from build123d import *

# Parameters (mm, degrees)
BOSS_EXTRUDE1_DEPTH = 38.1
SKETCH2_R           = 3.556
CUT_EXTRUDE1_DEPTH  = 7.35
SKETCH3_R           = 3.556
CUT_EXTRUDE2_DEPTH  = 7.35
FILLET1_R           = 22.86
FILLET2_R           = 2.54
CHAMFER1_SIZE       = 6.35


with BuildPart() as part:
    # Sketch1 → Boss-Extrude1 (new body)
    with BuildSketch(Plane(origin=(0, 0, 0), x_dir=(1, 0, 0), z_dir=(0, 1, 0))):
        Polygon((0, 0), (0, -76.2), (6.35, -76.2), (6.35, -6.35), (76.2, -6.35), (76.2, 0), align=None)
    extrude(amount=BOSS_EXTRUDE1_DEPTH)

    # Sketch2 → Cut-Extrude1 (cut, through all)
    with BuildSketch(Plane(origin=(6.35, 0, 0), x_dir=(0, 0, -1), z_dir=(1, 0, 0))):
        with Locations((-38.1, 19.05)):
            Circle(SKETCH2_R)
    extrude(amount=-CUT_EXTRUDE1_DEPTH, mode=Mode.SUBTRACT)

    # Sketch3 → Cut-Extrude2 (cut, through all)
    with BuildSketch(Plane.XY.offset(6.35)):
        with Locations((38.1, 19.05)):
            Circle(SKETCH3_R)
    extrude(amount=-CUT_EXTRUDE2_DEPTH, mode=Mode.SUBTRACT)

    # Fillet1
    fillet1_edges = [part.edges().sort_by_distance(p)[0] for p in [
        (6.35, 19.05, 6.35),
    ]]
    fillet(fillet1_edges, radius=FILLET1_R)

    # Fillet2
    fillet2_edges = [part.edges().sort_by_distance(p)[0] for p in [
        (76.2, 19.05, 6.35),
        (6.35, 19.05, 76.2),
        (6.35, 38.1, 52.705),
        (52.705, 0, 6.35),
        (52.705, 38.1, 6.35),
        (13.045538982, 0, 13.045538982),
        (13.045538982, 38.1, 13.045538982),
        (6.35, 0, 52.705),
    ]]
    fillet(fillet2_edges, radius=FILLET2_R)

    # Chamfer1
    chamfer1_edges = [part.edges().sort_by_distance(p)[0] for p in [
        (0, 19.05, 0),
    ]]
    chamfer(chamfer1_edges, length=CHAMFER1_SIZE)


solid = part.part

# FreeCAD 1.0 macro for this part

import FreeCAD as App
import Part
import Sketcher
from FreeCAD import Vector
Q = App.Units.Quantity


def edges_at(feature, points):
    """Names of the edges that pass closest to the given points."""
    edges = feature.Shape.Edges
    near = lambda p: min(range(len(edges)), key=lambda i: edges[i].distToShape(Part.Vertex(*p))[0])
    return sorted({f"Edge{near(p) + 1}" for p in points})


def add_polygon(sketch, points):
    """Adds a closed chain of lines whose ends are joined by coincident constraints."""
    first, n = sketch.GeometryCount, len(points)
    for a, b in zip(points, points[1:] + points[:1]):
        sketch.addGeometry(Part.LineSegment(App.Vector(*a, 0), App.Vector(*b, 0)), False)
    for i in range(n):
        sketch.addConstraint(Sketcher.Constraint("Coincident", first + i, 2, first + (i + 1) % n, 1))

doc = App.newDocument("Part")
body = doc.addObject("PartDesign::Body", "Body")

sketch1 = doc.addObject("Sketcher::SketchObject", "Sketch")
body.addObject(sketch1)
sketch1.AttachmentSupport = (doc.XZ_Plane, [""])
sketch1.MapMode = "FlatFace"
add_polygon(sketch1, [(0, 0), (0, 76), (6, 76), (6, 6), (76, 6), (76, 0)])
sketch1.addConstraint([
    Sketcher.Constraint("Vertical", 0),
    Sketcher.Constraint("Horizontal", 1),
    Sketcher.Constraint("Vertical", 2),
    Sketcher.Constraint("Horizontal", 3),
    Sketcher.Constraint("Vertical", 4),
    Sketcher.Constraint("Horizontal", 5),
    Sketcher.Constraint("Coincident", 5, 2, -1, 1),
    Sketcher.Constraint("Equal", 5, 0),
    Sketcher.Constraint("Equal", 3, 2),
    Sketcher.Constraint("DistanceX", 5, 2, 5, 1, Q("3 in")),
    Sketcher.Constraint("DistanceX", 1, 1, 1, 2, Q("0.25 in")),
])
pad1 = doc.addObject("PartDesign::Pad", "Pad")
body.addObject(pad1)
pad1.Profile = sketch1
pad1.Length = Q("1.5 in")
pad1.Reversed = True

sketch2 = doc.addObject("Sketcher::SketchObject", "Sketch001")
body.addObject(sketch2)
sketch2.AttachmentSupport = (doc.YZ_Plane, [""])
sketch2.MapMode = "FlatFace"
sketch2.AttachmentOffset = App.Placement(Vector(0, 0, 0.25 * 25.4), App.Rotation())
sketch2.addGeometry(Part.Circle(Vector(19.1, 38.1, 0), Vector(0, 0, 1), 3.6), False)
sketch2.addConstraint([
    Sketcher.Constraint("Diameter", 0, Q("0.28 in")),
    Sketcher.Constraint("DistanceY", -1, 1, 0, 3, Q("1.5 in")),
    Sketcher.Constraint("DistanceX", -1, 1, 0, 3, Q("0.75 in")),
])
pocket1 = doc.addObject("PartDesign::Pocket", "Pocket")
body.addObject(pocket1)
pocket1.Profile = sketch2
pocket1.Type = "ThroughAll"

sketch3 = doc.addObject("Sketcher::SketchObject", "Sketch002")
body.addObject(sketch3)
sketch3.AttachmentSupport = (doc.XY_Plane, [""])
sketch3.MapMode = "FlatFace"
sketch3.AttachmentOffset = App.Placement(Vector(0, 0, 0.25 * 25.4), App.Rotation())
sketch3.addGeometry(Part.Circle(Vector(38.1, 19.1, 0), Vector(0, 0, 1), 3.6), False)
sketch3.addConstraint([
    Sketcher.Constraint("Diameter", 0, Q("0.28 in")),
    Sketcher.Constraint("DistanceX", -1, 1, 0, 3, Q("1.5 in")),
    Sketcher.Constraint("DistanceY", -1, 1, 0, 3, Q("0.75 in")),
])
pocket2 = doc.addObject("PartDesign::Pocket", "Pocket001")
body.addObject(pocket2)
pocket2.Profile = sketch3
pocket2.Type = "ThroughAll"
doc.recompute()

fillet = doc.addObject("PartDesign::Fillet", "Fillet")
body.addObject(fillet)
fillet.Base = (pocket2, edges_at(pocket2, [(6.35, 19.05, 6.35)]))
fillet.Radius = Q("0.9 in")
doc.recompute()

fillet2 = doc.addObject("PartDesign::Fillet", "Fillet001")
body.addObject(fillet2)
fillet2.Base = (fillet, edges_at(fillet, [
    (76.2, 19.05, 6.35),
    (6.35, 19.05, 76.2),
    (6.35, 38.1, 52.705),
    (52.705, 0, 6.35),
    (52.705, 38.1, 6.35),
    (13.046, 0, 13.046),
    (13.046, 38.1, 13.046),
    (6.35, 0, 52.705),
]))
fillet2.Radius = Q("0.1 in")
doc.recompute()

chamfer = doc.addObject("PartDesign::Chamfer", "Chamfer")
body.addObject(chamfer)
chamfer.Base = (fillet2, edges_at(fillet2, [(0, 19.05, 0)]))
chamfer.Size = Q("0.25 in")

doc.recompute()
